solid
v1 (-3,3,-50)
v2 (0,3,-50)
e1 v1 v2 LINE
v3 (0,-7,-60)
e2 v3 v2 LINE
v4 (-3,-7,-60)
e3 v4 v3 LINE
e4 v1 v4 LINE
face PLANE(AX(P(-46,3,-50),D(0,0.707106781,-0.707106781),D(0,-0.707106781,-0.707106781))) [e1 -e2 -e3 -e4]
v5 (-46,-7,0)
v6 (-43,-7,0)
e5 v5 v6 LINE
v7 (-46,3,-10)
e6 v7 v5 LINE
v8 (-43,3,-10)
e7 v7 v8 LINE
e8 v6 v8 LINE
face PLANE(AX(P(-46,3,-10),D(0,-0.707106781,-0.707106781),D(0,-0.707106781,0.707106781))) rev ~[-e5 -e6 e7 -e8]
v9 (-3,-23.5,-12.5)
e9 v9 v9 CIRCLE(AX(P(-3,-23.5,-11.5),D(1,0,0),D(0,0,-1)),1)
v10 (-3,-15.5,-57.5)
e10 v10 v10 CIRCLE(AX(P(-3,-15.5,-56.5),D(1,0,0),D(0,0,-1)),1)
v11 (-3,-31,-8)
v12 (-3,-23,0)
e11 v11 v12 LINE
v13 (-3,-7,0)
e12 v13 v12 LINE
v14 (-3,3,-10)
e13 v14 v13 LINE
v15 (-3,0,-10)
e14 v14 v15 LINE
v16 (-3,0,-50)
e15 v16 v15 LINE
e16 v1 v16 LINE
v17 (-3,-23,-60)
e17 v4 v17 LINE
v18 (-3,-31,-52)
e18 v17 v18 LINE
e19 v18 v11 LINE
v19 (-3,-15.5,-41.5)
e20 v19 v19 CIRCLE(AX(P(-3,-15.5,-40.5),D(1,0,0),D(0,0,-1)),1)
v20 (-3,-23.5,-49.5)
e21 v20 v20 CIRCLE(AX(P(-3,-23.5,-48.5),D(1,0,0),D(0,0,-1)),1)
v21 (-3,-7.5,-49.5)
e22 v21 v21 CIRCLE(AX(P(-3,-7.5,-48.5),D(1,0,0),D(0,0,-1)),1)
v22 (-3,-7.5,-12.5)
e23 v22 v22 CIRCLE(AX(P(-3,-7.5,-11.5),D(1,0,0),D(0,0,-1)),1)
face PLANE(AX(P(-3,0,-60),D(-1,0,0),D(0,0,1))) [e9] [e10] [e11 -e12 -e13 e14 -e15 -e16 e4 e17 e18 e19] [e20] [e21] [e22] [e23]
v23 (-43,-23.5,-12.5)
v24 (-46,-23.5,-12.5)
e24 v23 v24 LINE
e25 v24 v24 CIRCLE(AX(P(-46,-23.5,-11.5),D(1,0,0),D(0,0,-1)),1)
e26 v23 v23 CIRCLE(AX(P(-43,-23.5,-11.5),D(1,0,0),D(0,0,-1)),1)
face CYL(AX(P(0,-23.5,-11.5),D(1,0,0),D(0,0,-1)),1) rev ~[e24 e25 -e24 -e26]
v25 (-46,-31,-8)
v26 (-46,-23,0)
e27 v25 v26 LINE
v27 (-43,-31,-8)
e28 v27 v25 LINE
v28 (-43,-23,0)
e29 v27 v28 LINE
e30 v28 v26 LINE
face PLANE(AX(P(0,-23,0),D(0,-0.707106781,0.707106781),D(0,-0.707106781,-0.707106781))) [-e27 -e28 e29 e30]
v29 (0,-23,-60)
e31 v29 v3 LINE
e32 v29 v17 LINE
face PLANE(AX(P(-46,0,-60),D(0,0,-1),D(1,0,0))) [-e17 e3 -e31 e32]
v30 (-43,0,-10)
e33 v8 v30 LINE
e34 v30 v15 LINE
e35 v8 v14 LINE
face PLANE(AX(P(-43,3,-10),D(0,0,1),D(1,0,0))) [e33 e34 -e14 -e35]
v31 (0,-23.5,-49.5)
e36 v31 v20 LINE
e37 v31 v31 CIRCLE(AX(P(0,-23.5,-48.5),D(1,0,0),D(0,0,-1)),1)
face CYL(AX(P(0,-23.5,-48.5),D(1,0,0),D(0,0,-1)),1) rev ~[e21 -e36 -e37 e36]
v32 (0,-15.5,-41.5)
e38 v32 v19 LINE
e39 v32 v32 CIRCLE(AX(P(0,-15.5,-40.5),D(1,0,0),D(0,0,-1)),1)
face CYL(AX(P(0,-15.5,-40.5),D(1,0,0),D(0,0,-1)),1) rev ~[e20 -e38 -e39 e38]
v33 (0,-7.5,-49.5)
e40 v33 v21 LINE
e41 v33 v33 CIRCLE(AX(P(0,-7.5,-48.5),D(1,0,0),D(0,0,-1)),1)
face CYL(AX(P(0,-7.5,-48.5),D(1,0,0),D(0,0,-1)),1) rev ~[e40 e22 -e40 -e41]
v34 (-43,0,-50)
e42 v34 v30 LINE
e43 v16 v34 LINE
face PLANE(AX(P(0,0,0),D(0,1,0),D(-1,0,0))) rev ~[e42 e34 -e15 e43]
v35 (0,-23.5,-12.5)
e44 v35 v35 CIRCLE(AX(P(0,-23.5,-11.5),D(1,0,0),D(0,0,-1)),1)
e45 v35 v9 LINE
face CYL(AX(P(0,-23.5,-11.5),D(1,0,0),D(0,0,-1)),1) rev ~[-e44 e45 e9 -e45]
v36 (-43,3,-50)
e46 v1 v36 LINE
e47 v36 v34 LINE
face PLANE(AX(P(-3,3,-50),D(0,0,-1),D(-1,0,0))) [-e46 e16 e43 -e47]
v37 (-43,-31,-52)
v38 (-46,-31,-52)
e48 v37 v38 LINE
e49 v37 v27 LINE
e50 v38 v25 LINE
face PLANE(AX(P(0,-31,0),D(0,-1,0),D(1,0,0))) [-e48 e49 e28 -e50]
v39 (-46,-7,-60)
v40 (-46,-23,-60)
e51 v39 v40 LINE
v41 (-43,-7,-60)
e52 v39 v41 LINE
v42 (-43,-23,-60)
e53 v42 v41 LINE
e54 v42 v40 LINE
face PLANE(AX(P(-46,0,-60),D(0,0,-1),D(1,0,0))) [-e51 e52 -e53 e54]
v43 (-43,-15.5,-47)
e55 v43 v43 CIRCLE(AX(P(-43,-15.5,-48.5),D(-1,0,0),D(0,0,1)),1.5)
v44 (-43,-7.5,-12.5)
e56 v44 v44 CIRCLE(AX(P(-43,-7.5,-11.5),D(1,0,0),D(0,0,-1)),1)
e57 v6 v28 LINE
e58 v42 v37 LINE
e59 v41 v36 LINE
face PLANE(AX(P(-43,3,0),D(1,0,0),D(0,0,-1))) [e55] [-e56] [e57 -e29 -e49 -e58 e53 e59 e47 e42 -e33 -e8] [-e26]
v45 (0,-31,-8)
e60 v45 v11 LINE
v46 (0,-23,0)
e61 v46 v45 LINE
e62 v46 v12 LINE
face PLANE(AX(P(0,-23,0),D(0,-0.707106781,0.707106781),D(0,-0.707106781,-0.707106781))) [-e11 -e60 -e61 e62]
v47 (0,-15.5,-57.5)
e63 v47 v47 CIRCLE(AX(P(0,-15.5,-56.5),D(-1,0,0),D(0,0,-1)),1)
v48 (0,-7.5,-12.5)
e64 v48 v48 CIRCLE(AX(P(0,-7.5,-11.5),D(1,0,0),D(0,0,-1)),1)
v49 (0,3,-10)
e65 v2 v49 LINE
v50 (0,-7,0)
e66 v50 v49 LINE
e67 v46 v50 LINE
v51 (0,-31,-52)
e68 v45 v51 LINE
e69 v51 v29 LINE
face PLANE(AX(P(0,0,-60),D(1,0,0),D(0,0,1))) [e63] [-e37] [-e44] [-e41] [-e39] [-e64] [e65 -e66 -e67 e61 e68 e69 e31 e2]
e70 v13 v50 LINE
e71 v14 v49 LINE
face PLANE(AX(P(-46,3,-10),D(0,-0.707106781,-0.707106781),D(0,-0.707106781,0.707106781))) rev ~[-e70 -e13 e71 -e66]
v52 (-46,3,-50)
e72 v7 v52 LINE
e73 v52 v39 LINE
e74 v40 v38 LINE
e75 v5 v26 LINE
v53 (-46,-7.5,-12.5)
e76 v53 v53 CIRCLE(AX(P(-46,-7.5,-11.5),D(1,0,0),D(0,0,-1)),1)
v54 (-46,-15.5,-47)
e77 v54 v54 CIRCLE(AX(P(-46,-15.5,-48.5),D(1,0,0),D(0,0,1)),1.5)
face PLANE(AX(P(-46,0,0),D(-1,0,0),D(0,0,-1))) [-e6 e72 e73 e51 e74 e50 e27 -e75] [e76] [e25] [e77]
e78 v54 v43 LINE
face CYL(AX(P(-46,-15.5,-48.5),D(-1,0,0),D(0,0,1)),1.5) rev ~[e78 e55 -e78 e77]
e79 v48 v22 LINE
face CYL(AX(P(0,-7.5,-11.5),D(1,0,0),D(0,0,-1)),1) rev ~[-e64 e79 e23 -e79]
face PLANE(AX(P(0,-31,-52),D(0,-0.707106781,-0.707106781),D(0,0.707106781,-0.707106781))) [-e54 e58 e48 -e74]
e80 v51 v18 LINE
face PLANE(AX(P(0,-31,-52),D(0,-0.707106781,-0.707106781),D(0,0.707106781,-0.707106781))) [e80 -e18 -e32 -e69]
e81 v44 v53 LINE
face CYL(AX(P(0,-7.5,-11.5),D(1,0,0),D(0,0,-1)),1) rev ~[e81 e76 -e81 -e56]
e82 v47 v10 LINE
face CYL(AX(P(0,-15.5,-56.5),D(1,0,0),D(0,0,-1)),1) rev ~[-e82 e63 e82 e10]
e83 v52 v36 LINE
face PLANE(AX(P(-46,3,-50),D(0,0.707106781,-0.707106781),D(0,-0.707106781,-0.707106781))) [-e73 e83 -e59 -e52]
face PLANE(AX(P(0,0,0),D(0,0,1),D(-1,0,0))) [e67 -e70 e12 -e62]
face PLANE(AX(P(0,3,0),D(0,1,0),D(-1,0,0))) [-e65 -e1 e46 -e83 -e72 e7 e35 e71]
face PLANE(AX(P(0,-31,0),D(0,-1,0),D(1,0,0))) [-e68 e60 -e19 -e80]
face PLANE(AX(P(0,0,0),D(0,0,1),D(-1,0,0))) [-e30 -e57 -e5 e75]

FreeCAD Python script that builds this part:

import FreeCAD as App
import Part
import Sketcher
from FreeCAD import Vector
Q = App.Units.Quantity


def add_polygon(sketch, points):
    """Adds a closed chain of lines whose ends are joined by coincident constraints."""
    first, n = sketch.GeometryCount, len(points)
    for a, b in zip(points, points[1:] + points[:1]):
        sketch.addGeometry(Part.LineSegment(App.Vector(*a, 0), App.Vector(*b, 0)), False)
    for i in range(n):
        sketch.addConstraint(Sketcher.Constraint("Coincident", first + i, 2, first + (i + 1) % n, 1))

doc = App.newDocument("Part")
body = doc.addObject("PartDesign::Body", "Body")

# Sketch on XZ plane
sketch1 = body.newObject("Sketcher::SketchObject", "Sketch")
sketch1.AttachmentSupport = (doc.getObject("XZ_Plane"), [""])
sketch1.MapMode = "FlatFace"
add_polygon(sketch1, [(-46, 0), (0, 0), (0, -60), (-46, -60)])  # lines 0-3
sketch1.addConstraint(Sketcher.Constraint("Horizontal", 0))
sketch1.addConstraint(Sketcher.Constraint("Vertical", 1))
sketch1.addConstraint(Sketcher.Constraint("Horizontal", 2))
sketch1.addConstraint(Sketcher.Constraint("Vertical", 3))
sketch1.addConstraint(Sketcher.Constraint("Coincident", 0, 2, -1, 1))
sketch1.addConstraint(Sketcher.Constraint("DistanceX", 0, 1, 0, 2, Q("46 mm")))
sketch1.addConstraint(Sketcher.Constraint("DistanceY", 1, 2, 1, 1, Q("60 mm")))
pad1 = body.newObject("PartDesign::Pad", "Pad")
pad1.Profile = sketch1
pad1.Length = 3
pad1.Reversed = True

# Sketch on XZ plane
sketch2 = body.newObject("Sketcher::SketchObject", "Sketch001")
sketch2.AttachmentSupport = (doc.getObject("XZ_Plane"), [""])
sketch2.MapMode = "FlatFace"
add_polygon(sketch2, [(-46, 0), (-46, -60), (-43, -60), (-43, 0)])  # lines 0-3
add_polygon(sketch2, [(-3, 0), (-3, -60), (0, -60), (0, 0)])  # lines 4-7
sketch2.addConstraint(Sketcher.Constraint("Vertical", 0))
sketch2.addConstraint(Sketcher.Constraint("Horizontal", 1))
sketch2.addConstraint(Sketcher.Constraint("Vertical", 2))
sketch2.addConstraint(Sketcher.Constraint("Horizontal", 3))
sketch2.addConstraint(Sketcher.Constraint("Vertical", 4))
sketch2.addConstraint(Sketcher.Constraint("Horizontal", 5))
sketch2.addConstraint(Sketcher.Constraint("Vertical", 6))
sketch2.addConstraint(Sketcher.Constraint("Horizontal", 7))
sketch2.addConstraint(Sketcher.Constraint("Coincident", 6, 2, -1, 1))
sketch2.addConstraint(Sketcher.Constraint("PointOnObject", 2, 2, -1))
sketch2.addConstraint(Sketcher.Constraint("Horizontal", 1, 2, 4, 2))
sketch2.addConstraint(Sketcher.Constraint("Equal", 3, 5))
sketch2.addConstraint(Sketcher.Constraint("DistanceX", 1, 1, 1, 2, Q("3 mm")))
sketch2.addConstraint(Sketcher.Constraint("DistanceY", 0, 2, 0, 1, Q("60 mm")))
sketch2.addConstraint(Sketcher.Constraint("DistanceX", 0, 2, -1, 1, Q("46 mm")))
pad2 = body.newObject("PartDesign::Pad", "Pad001")
pad2.Profile = sketch2
pad2.Length = 31

# Sketch on YZ plane
sketch3 = body.newObject("Sketcher::SketchObject", "Sketch002")
sketch3.AttachmentSupport = (doc.getObject("YZ_Plane"), [""])
sketch3.MapMode = "FlatFace"
sketch3.addGeometry(Part.Circle(Vector(-15.5, -56.5, 0), Vector(0, 0, 1), 1), False)
sketch3.addGeometry(Part.Circle(Vector(-15.5, -40.5, 0), Vector(0, 0, 1), 1), False)
sketch3.addGeometry(Part.Circle(Vector(-23.5, -48.5, 0), Vector(0, 0, 1), 1), False)
sketch3.addGeometry(Part.Circle(Vector(-7.5, -48.5, 0), Vector(0, 0, 1), 1), False)
sketch3.addConstraint(Sketcher.Constraint("Equal", 0, 1))
sketch3.addConstraint(Sketcher.Constraint("Equal", 1, 2))
sketch3.addConstraint(Sketcher.Constraint("Equal", 2, 3))
sketch3.addConstraint(Sketcher.Constraint("Horizontal", 2, 3, 3, 3))
sketch3.addConstraint(Sketcher.Constraint("Vertical", 0, 3, 1, 3))
sketch3.addConstraint(Sketcher.Constraint("Diameter", 0, Q("2 mm")))
sketch3.addConstraint(Sketcher.Constraint("DistanceX", 2, 3, 0, 3, Q("8 mm")))
sketch3.addConstraint(Sketcher.Constraint("DistanceY", 0, 3, 2, 3, Q("8 mm")))
sketch3.addConstraint(Sketcher.Constraint("DistanceY", 2, 3, 1, 3, Q("8 mm")))
sketch3.addConstraint(Sketcher.Constraint("DistanceX", 0, 3, 3, 3, Q("8 mm")))
sketch3.addConstraint(Sketcher.Constraint("DistanceX", 0, 3, -1, 1, Q("15.5 mm")))
sketch3.addConstraint(Sketcher.Constraint("DistanceY", 0, 3, -1, 1, Q("56.5 mm")))
pocket1 = body.newObject("PartDesign::Pocket", "Pocket")
pocket1.Profile = sketch3
pocket1.Length = 3

# Sketch on YZ plane
sketch4 = body.newObject("Sketcher::SketchObject", "Sketch003")
sketch4.AttachmentSupport = (doc.getObject("YZ_Plane"), [""])
sketch4.MapMode = "FlatFace"
add_polygon(sketch4, [(-23, -60), (-31, -52), (-31, -60)])  # lines 0-2
add_polygon(sketch4, [(-23, 0), (-31, 0), (-31, -8)])  # lines 3-5
sketch4.addConstraint(Sketcher.Constraint("Vertical", 1))
sketch4.addConstraint(Sketcher.Constraint("Horizontal", 2))
sketch4.addConstraint(Sketcher.Constraint("Horizontal", 3))
sketch4.addConstraint(Sketcher.Constraint("Vertical", 4))
sketch4.addConstraint(Sketcher.Constraint("PointOnObject", 3, 2, -1))
sketch4.addConstraint(Sketcher.Constraint("Perpendicular", 0, 5))
sketch4.addConstraint(Sketcher.Constraint("Vertical", 1, 2, 3, 2))
sketch4.addConstraint(Sketcher.Constraint("Vertical", 2, 2, 5, 2))
sketch4.addConstraint(Sketcher.Constraint("Equal", 3, 1))
sketch4.addConstraint(Sketcher.Constraint("DistanceX", 2, 1, 2, 2, Q("8 mm")))
sketch4.addConstraint(Sketcher.Constraint("DistanceX", 0, 2, -1, 1, Q("31 mm")))
sketch4.addConstraint(Sketcher.Constraint("DistanceY", 0, 2, -1, 1, Q("52 mm")))
pocket2 = body.newObject("PartDesign::Pocket", "Pocket001")
pocket2.Profile = sketch4
pocket2.Length = 50

# Sketch on XZ plane
sketch5 = body.newObject("Sketcher::SketchObject", "Sketch004")
sketch5.AttachmentSupport = (doc.getObject("XZ_Plane"), [""])
sketch5.MapMode = "FlatFace"
sketch5.AttachmentOffset = App.Placement(Vector(0, 0, -3), App.Rotation())
add_polygon(sketch5, [(-3, 0), (-3, -10), (-43, -10), (-43, 0)])  # lines 0-3
add_polygon(sketch5, [(-3, -50), (-3, -60), (-43, -60), (-43, -50)])  # lines 4-7
sketch5.addConstraint(Sketcher.Constraint("Vertical", 0))
sketch5.addConstraint(Sketcher.Constraint("Horizontal", 1))
sketch5.addConstraint(Sketcher.Constraint("Vertical", 2))
sketch5.addConstraint(Sketcher.Constraint("Horizontal", 3))
sketch5.addConstraint(Sketcher.Constraint("Vertical", 4))
sketch5.addConstraint(Sketcher.Constraint("Horizontal", 5))
sketch5.addConstraint(Sketcher.Constraint("Vertical", 6))
sketch5.addConstraint(Sketcher.Constraint("Horizontal", 7))
sketch5.addConstraint(Sketcher.Constraint("PointOnObject", 2, 2, -1))
sketch5.addConstraint(Sketcher.Constraint("Vertical", 3, 2, 4, 2))
sketch5.addConstraint(Sketcher.Constraint("Vertical", 2, 2, 5, 2))
sketch5.addConstraint(Sketcher.Constraint("Equal", 2, 4))
sketch5.addConstraint(Sketcher.Constraint("DistanceX", 1, 2, 1, 1, Q("40 mm")))
sketch5.addConstraint(Sketcher.Constraint("DistanceY", 0, 2, 0, 1, Q("10 mm")))
sketch5.addConstraint(Sketcher.Constraint("DistanceY", 6, 2, 1, 2, Q("40 mm")))
sketch5.addConstraint(Sketcher.Constraint("DistanceX", 0, 2, -1, 1, Q("3 mm")))
pocket3 = body.newObject("PartDesign::Pocket", "Pocket002")
pocket3.Profile = sketch5
pocket3.Length = 10
pocket3.Reversed = True

# Sketch on YZ plane
sketch6 = body.newObject("Sketcher::SketchObject", "Sketch005")
sketch6.AttachmentSupport = (doc.getObject("YZ_Plane"), [""])
sketch6.MapMode = "FlatFace"
sketch6.AttachmentOffset = App.Placement(Vector(0, 0, -46), App.Rotation())
sketch6.addGeometry(Part.Circle(Vector(-15.5, -48.5, 0), Vector(0, 0, 1), 1.5), False)
sketch6.addConstraint(Sketcher.Constraint("Diameter", 0, Q("3 mm")))
sketch6.addConstraint(Sketcher.Constraint("DistanceX", 0, 3, -1, 1, Q("15.5 mm")))
sketch6.addConstraint(Sketcher.Constraint("DistanceY", 0, 3, -1, 1, Q("48.5 mm")))
pocket4 = body.newObject("PartDesign::Pocket", "Pocket003")
pocket4.Profile = sketch6
pocket4.Length = 3
pocket4.Reversed = True

# Sketch on YZ plane
sketch7 = body.newObject("Sketcher::SketchObject", "Sketch006")
sketch7.AttachmentSupport = (doc.getObject("YZ_Plane"), [""])
sketch7.MapMode = "FlatFace"
sketch7.addGeometry(Part.Circle(Vector(-7.5, -11.5, 0), Vector(0, 0, 1), 1), False)
sketch7.addGeometry(Part.Circle(Vector(-23.5, -11.5, 0), Vector(0, 0, 1), 1), False)
sketch7.addConstraint(Sketcher.Constraint("Equal", 0, 1))
sketch7.addConstraint(Sketcher.Constraint("Horizontal", 0, 3, 1, 3))
sketch7.addConstraint(Sketcher.Constraint("Diameter", 0, Q("2 mm")))
sketch7.addConstraint(Sketcher.Constraint("DistanceY", 0, 3, -1, 1, Q("11.5 mm")))
sketch7.addConstraint(Sketcher.Constraint("DistanceX", 1, 3, 0, 3, Q("16 mm")))
sketch7.addConstraint(Sketcher.Constraint("DistanceX", 0, 3, -1, 1, Q("7.5 mm")))
pocket5 = body.newObject("PartDesign::Pocket", "Pocket004")
pocket5.Profile = sketch7
pocket5.Length = 50

# Sketch on YZ plane
sketch8 = body.newObject("Sketcher::SketchObject", "Sketch007")
sketch8.AttachmentSupport = (doc.getObject("YZ_Plane"), [""])
sketch8.MapMode = "FlatFace"
sketch8.AttachmentOffset = App.Placement(Vector(0, 0, -46), App.Rotation())
add_polygon(sketch8, [(-7, -60), (3, -50), (3, -60)])  # lines 0-2
add_polygon(sketch8, [(3, 0), (3, -10), (-7, 0)])  # lines 3-5
sketch8.addConstraint(Sketcher.Constraint("Vertical", 1))
sketch8.addConstraint(Sketcher.Constraint("Horizontal", 2))
sketch8.addConstraint(Sketcher.Constraint("Vertical", 3))
sketch8.addConstraint(Sketcher.Constraint("Horizontal", 5))
sketch8.addConstraint(Sketcher.Constraint("PointOnObject", 4, 2, -1))
sketch8.addConstraint(Sketcher.Constraint("Perpendicular", 0, 4))
sketch8.addConstraint(Sketcher.Constraint("Vertical", 1, 2, 3, 2))
sketch8.addConstraint(Sketcher.Constraint("Vertical", 2, 2, 4, 2))
sketch8.addConstraint(Sketcher.Constraint("Equal", 5, 1))
sketch8.addConstraint(Sketcher.Constraint("DistanceX", 2, 2, 2, 1, Q("10 mm")))
sketch8.addConstraint(Sketcher.Constraint("DistanceX", -1, 1, 0, 2, Q("3 mm")))
sketch8.addConstraint(Sketcher.Constraint("DistanceY", 0, 2, -1, 1, Q("50 mm")))
pocket6 = body.newObject("PartDesign::Pocket", "Pocket005")
pocket6.Profile = sketch8
pocket6.Length = 50
pocket6.Reversed = True

doc.recompute()
